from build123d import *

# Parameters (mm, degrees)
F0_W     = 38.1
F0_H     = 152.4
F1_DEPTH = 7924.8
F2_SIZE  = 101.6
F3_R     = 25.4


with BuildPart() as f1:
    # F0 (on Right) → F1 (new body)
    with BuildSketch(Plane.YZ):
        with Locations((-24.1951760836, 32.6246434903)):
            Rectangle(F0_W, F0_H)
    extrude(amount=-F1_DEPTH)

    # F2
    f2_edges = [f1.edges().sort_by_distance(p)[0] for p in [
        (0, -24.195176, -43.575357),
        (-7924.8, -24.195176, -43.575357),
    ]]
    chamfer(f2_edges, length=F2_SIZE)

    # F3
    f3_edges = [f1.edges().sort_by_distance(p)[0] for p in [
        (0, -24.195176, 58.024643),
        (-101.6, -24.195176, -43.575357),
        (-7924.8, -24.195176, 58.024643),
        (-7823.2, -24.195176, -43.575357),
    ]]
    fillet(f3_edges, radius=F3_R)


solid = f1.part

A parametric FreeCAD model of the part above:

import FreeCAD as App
import Part
import Sketcher

V = App.Vector
Q = App.Units.Quantity


def edges_at(feature, points):
    """Names of the edges that pass closest to the given points."""
    edges = feature.Shape.Edges
    near = lambda p: min(range(len(edges)), key=lambda i: edges[i].distToShape(Part.Vertex(*p))[0])
    return sorted({f"Edge{near(p) + 1}" for p in points})


def add_polygon(sketch, points):
    """Adds a closed chain of lines whose ends are joined by coincident constraints."""
    first, n = sketch.GeometryCount, len(points)
    for a, b in zip(points, points[1:] + points[:1]):
        sketch.addGeometry(Part.LineSegment(App.Vector(*a, 0), App.Vector(*b, 0)), False)
    for i in range(n):
        sketch.addConstraint(Sketcher.Constraint("Coincident", first + i, 2, first + (i + 1) % n, 1))

doc = App.newDocument("Part")
body = doc.addObject("PartDesign::Body", "Body")

# Sketch on YZ plane
sketch1 = body.newObject("Sketcher::SketchObject", "Sketch")
sketch1.AttachmentSupport = (doc.getObject("YZ_Plane"), [""])
sketch1.MapMode = "FlatFace"
add_polygon(sketch1, [(-43, 109), (-43, -44), (-5, -44), (-5, 109)])  # lines 0-3
sketch1.addConstraint(Sketcher.Constraint("Vertical", 0))
sketch1.addConstraint(Sketcher.Constraint("Horizontal", 1))
sketch1.addConstraint(Sketcher.Constraint("Vertical", 2))
sketch1.addConstraint(Sketcher.Constraint("Horizontal", 3))
sketch1.addConstraint(Sketcher.Constraint("DistanceY", 0, 2, 0, 1, Q("6 in")))
sketch1.addConstraint(Sketcher.Constraint("DistanceX", 1, 1, 1, 2, Q("1.5 in")))
sketch1.addConstraint(Sketcher.Constraint("DistanceX", 0, 2, -1, 1, 43.245176))
sketch1.addConstraint(Sketcher.Constraint("DistanceY", 0, 2, -1, 1, 43.575357))
pad1 = body.newObject("PartDesign::Pad", "Pad")
pad1.Profile = sketch1
pad1.Length = Q("312 in")
pad1.Reversed = True
doc.recompute()

chamfer = body.newObject("PartDesign::Chamfer", "Chamfer")
chamfer.Base = (pad1, edges_at(pad1, [(0, -24.195, -43.575), (-7924.8, -24.195, -43.575)]))
chamfer.Size = Q("4 in")
doc.recompute()

fillet = body.newObject("PartDesign::Fillet", "Fillet")
fillet.Base = (chamfer, edges_at(chamfer, [
    (0, -24.195, 58.025),
    (-101.6, -24.195, -43.575),
    (-7924.8, -24.195, 58.025),
    (-7823.2, -24.195, -43.575),
]))
fillet.Radius = Q("1 in")

doc.recompute()
